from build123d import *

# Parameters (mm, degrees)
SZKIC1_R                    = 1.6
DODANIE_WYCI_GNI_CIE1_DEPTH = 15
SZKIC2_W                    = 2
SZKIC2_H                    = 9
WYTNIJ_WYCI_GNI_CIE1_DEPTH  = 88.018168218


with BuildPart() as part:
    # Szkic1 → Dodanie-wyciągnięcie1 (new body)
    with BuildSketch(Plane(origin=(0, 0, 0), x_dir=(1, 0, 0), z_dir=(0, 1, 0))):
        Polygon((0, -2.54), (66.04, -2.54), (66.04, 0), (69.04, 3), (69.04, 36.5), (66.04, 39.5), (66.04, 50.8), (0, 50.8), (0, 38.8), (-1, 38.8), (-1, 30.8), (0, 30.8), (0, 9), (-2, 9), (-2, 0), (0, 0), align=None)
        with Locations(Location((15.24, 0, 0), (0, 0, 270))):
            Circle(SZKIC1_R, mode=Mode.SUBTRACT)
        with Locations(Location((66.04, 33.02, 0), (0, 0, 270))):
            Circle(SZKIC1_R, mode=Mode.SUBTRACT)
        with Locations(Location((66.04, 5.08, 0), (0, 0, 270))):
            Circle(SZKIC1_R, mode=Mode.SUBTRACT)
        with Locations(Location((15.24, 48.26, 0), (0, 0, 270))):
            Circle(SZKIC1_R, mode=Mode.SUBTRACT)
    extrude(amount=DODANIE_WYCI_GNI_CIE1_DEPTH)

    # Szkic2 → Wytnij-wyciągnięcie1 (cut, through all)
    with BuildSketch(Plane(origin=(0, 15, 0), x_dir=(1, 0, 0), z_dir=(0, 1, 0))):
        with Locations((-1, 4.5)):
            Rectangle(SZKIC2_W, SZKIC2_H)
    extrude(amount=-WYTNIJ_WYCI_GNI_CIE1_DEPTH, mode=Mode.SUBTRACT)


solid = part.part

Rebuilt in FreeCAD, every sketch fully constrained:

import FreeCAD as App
import Part
import Sketcher

V = App.Vector
Q = App.Units.Quantity

doc = App.newDocument("Part")
body = doc.addObject("PartDesign::Body", "Body")

sketch1 = body.newObject("Sketcher::SketchObject", "Sketch")
sketch1.AttachmentSupport = (doc.getObject("XZ_Plane"), [""])
sketch1.MapMode = "FlatFace"
sketch1.addGeometry([
    Part.LineSegment(V(0, 2.54, 0), V(66.04, 2.54, 0)),
    Part.LineSegment(V(66.04, 2.54, 0), V(66.04, 0, 0)),
    Part.LineSegment(V(66.04, 0, 0), V(69.04, -3, 0)),
    Part.LineSegment(V(69.04, -3, 0), V(69.04, -36.5, 0)),
    Part.LineSegment(V(69.04, -36.5, 0), V(66.04, -39.5, 0)),
    Part.LineSegment(V(66.04, -39.5, 0), V(66.04, -50.8, 0)),
    Part.LineSegment(V(66.04, -50.8, 0), V(0, -50.8, 0)),
    Part.LineSegment(V(0, -50.8, 0), V(0, -38.8, 0)),
    Part.LineSegment(V(0, -38.8, 0), V(-1, -38.8, 0)),
    Part.LineSegment(V(-1, -38.8, 0), V(-1, -30.8, 0)),
    Part.LineSegment(V(-1, -30.8, 0), V(0, -30.8, 0)),
    Part.LineSegment(V(0, -30.8, 0), V(0, -9, 0)),
    Part.LineSegment(V(0, -9, 0), V(-2, -9, 0)),
    Part.LineSegment(V(-2, -9, 0), V(-2, 0, 0)),
    Part.LineSegment(V(-2, 0, 0), V(0, 0, 0)),
    Part.LineSegment(V(0, 0, 0), V(0, 2.54, 0)),
    Part.Circle(V(15.24, 0, 0), V(0, 0, 1), 1.6),
    Part.Circle(V(66.04, -5.08, 0), V(0, 0, 1), 1.6),
    Part.Circle(V(15.24, -48.26, 0), V(0, 0, 1), 1.6),
    Part.Circle(V(66.04, -33.02, 0), V(0, 0, 1), 1.6),
], False)
sketch1.addConstraint([
    Sketcher.Constraint("Coincident", 0, 2, 1, 1),
    Sketcher.Constraint("Coincident", 1, 2, 2, 1),
    Sketcher.Constraint("Coincident", 2, 2, 3, 1),
    Sketcher.Constraint("Coincident", 3, 2, 4, 1),
    Sketcher.Constraint("Coincident", 4, 2, 5, 1),
    Sketcher.Constraint("Coincident", 5, 2, 6, 1),
    Sketcher.Constraint("Coincident", 6, 2, 7, 1),
    Sketcher.Constraint("Coincident", 7, 2, 8, 1),
    Sketcher.Constraint("Coincident", 8, 2, 9, 1),
    Sketcher.Constraint("Coincident", 9, 2, 10, 1),
    Sketcher.Constraint("Coincident", 10, 2, 11, 1),
    Sketcher.Constraint("Coincident", 11, 2, 12, 1),
    Sketcher.Constraint("Coincident", 12, 2, 13, 1),
    Sketcher.Constraint("Coincident", 13, 2, 14, 1),
    Sketcher.Constraint("Coincident", 14, 2, 15, 1),
    Sketcher.Constraint("Coincident", 15, 2, 0, 1),
    Sketcher.Constraint("Horizontal", 0),
    Sketcher.Constraint("Vertical", 1),
    Sketcher.Constraint("Vertical", 3),
    Sketcher.Constraint("Vertical", 5),
    Sketcher.Constraint("Horizontal", 6),
    Sketcher.Constraint("Vertical", 7),
    Sketcher.Constraint("Horizontal", 8),
    Sketcher.Constraint("Vertical", 9),
    Sketcher.Constraint("Horizontal", 10),
    Sketcher.Constraint("Vertical", 11),
    Sketcher.Constraint("Horizontal", 12),
    Sketcher.Constraint("Vertical", 13),
    Sketcher.Constraint("Horizontal", 14),
    Sketcher.Constraint("Vertical", 15),
    Sketcher.Constraint("Coincident", 14, 2, -1, 1),
    Sketcher.Constraint("Equal", 16, 17),
    Sketcher.Constraint("Equal", 17, 18),
    Sketcher.Constraint("Equal", 18, 19),
    Sketcher.Constraint("PointOnObject", 16, 3, -1),
    Sketcher.Constraint("PointOnObject", 1, 2, -1),
    Sketcher.Constraint("PointOnObject", 6, 2, -2),
    Sketcher.Constraint("PointOnObject", 10, 2, -2),
    Sketcher.Constraint("Perpendicular", 2, 4),
    Sketcher.Constraint("Vertical", 16, 3, 18, 3),
    Sketcher.Constraint("Vertical", 17, 3, 19, 3),
    Sketcher.Constraint("Vertical", 19, 3, 0, 2),
    Sketcher.Constraint("Vertical", 1, 2, 4, 2),
    Sketcher.Constraint("Equal", 2, 4),
    Sketcher.Constraint("Diameter", 16, Q("3.2 mm")),
    Sketcher.Constraint("DistanceX", 8, 2, 8, 1, Q("1 mm")),
    Sketcher.Constraint("DistanceX", 12, 2, 12, 1, Q("2 mm")),
    Sketcher.Constraint("DistanceY", 7, 1, 7, 2, Q("12 mm")),
    Sketcher.Constraint("DistanceY", 9, 1, 9, 2, Q("8 mm")),
    Sketcher.Constraint("DistanceY", 13, 1, 13, 2, Q("9 mm")),
    Sketcher.Constraint("DistanceY", 3, 2, 3, 1, Q("33.5 mm")),
    Sketcher.Constraint("DistanceY", 5, 2, 5, 1, Q("11.3 mm")),
    Sketcher.Constraint("DistanceY", 11, 1, 11, 2, Q("21.8 mm")),
    Sketcher.Constraint("DistanceX", 0, 1, 0, 2, Q("66.04 mm")),
    Sketcher.Constraint("DistanceY", 1, 2, 1, 1, Q("2.54 mm")),
    Sketcher.Constraint("DistanceX", 16, 3, 17, 3, Q("50.8 mm")),
    Sketcher.Constraint("DistanceY", 18, 3, 0, 2, Q("50.8 mm")),
    Sketcher.Constraint("DistanceY", 17, 3, -1, 1, Q("5.08 mm")),
    Sketcher.Constraint("DistanceY", 19, 3, -1, 1, Q("33.02 mm")),
])
pad1 = body.newObject("PartDesign::Pad", "Pad")
pad1.Profile = sketch1
pad1.Length = 15
pad1.Reversed = True

sketch2 = body.newObject("Sketcher::SketchObject", "Sketch001")
sketch2.AttachmentSupport = (doc.getObject("XZ_Plane"), [""])
sketch2.MapMode = "FlatFace"
sketch2.AttachmentOffset = App.Placement(V(0, 0, -15), App.Rotation())
sketch2.addGeometry([
    Part.LineSegment(V(-2, -9, 0), V(-2, 0, 0)),
    Part.LineSegment(V(-2, 0, 0), V(0, 0, 0)),
    Part.LineSegment(V(0, 0, 0), V(0, -9, 0)),
    Part.LineSegment(V(0, -9, 0), V(-2, -9, 0)),
], False)
sketch2.addConstraint([
    Sketcher.Constraint("Coincident", 0, 2, 1, 1),
    Sketcher.Constraint("Coincident", 1, 2, 2, 1),
    Sketcher.Constraint("Coincident", 2, 2, 3, 1),
    Sketcher.Constraint("Coincident", 3, 2, 0, 1),
    Sketcher.Constraint("Vertical", 0),
    Sketcher.Constraint("Horizontal", 1),
    Sketcher.Constraint("Vertical", 2),
    Sketcher.Constraint("Horizontal", 3),
    Sketcher.Constraint("Coincident", 1, 2, -1, 1),
    Sketcher.Constraint("DistanceX", 1, 1, 1, 2, Q("2 mm")),
    Sketcher.Constraint("DistanceY", 0, 1, 0, 2, Q("9 mm")),
])
pocket1 = body.newObject("PartDesign::Pocket", "Pocket")
pocket1.Profile = sketch2
pocket1.Type = "ThroughAll"
pocket1.Reversed = True

doc.recompute()
